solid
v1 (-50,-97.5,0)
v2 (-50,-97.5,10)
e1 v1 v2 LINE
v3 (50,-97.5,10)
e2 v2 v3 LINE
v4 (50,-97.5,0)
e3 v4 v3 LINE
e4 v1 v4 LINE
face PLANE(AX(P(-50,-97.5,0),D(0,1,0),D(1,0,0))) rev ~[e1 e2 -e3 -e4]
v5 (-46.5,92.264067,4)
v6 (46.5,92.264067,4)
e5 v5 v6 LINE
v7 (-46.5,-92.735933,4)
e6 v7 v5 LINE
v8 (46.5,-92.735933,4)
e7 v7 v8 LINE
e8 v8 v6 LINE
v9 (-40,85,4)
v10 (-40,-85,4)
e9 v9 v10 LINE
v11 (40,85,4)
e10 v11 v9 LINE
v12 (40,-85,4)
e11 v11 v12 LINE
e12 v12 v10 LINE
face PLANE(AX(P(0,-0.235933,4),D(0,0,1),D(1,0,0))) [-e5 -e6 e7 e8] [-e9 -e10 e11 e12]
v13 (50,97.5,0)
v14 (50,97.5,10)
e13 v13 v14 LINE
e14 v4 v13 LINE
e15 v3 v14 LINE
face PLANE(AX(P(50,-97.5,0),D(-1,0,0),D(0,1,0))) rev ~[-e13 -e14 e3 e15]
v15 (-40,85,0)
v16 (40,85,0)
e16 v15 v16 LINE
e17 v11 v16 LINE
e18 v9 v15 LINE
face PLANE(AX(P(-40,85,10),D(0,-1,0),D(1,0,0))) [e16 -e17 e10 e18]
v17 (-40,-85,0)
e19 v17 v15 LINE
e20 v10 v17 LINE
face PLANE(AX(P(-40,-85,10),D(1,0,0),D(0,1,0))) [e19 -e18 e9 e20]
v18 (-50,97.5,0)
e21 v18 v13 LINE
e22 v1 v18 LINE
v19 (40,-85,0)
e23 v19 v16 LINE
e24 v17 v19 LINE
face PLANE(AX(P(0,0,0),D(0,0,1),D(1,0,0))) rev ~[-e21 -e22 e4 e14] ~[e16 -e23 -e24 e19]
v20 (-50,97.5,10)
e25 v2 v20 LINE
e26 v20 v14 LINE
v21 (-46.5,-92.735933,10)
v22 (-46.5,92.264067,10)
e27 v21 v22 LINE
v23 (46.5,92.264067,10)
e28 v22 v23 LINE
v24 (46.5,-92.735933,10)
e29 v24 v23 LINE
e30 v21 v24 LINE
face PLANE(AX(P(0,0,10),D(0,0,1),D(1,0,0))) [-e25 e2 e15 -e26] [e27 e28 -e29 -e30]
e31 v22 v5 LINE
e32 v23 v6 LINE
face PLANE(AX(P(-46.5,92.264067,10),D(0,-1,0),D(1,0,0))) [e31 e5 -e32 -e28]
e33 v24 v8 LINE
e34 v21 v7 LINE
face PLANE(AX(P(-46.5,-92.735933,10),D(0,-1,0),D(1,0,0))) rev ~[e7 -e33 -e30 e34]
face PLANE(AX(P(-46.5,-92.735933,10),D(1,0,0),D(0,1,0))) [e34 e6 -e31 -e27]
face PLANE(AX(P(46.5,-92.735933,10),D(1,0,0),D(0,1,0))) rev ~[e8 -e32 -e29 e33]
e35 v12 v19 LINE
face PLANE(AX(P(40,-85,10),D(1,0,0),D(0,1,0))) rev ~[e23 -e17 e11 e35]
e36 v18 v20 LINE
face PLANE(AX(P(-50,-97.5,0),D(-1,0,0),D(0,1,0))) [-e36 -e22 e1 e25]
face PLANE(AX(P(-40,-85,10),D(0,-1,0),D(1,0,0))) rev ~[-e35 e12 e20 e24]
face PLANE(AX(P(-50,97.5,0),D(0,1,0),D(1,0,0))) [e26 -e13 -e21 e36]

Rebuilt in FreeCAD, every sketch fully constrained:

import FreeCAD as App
import Part
import Sketcher
from FreeCAD import Vector

doc = App.newDocument("Part")
body = doc.addObject("PartDesign::Body", "Body")

# Sketch on XY plane
sketch1 = body.newObject("Sketcher::SketchObject", "Sketch")
sketch1.AttachmentSupport = (doc.getObject("XY_Plane"), [""])
sketch1.MapMode = "FlatFace"
sketch1.addGeometry([
    Part.LineSegment(Vector(-50, 98, 0), Vector(-50, -98, 0)),
    Part.LineSegment(Vector(-50, -98, 0), Vector(50, -98, 0)),
    Part.LineSegment(Vector(50, -98, 0), Vector(50, 98, 0)),
    Part.LineSegment(Vector(50, 98, 0), Vector(-50, 98, 0)),
], False)
sketch1.addConstraint([
    Sketcher.Constraint("Coincident", 0, 2, 1, 1),
    Sketcher.Constraint("Coincident", 1, 2, 2, 1),
    Sketcher.Constraint("Coincident", 2, 2, 3, 1),
    Sketcher.Constraint("Coincident", 3, 2, 0, 1),
    Sketcher.Constraint("Vertical", 0),
    Sketcher.Constraint("Horizontal", 1),
    Sketcher.Constraint("Vertical", 2),
    Sketcher.Constraint("Horizontal", 3),
    Sketcher.Constraint("Symmetric", 0, 2, 2, 2, -1, 1),
    Sketcher.Constraint("DistanceX", 1, 1, 1, 2, 100.0),
    Sketcher.Constraint("DistanceY", 0, 2, 0, 1, 195.0),
])
pad1 = body.newObject("PartDesign::Pad", "Pad")
pad1.Profile = sketch1
pad1.Length = 10

# Sketch on XY plane
sketch2 = body.newObject("Sketcher::SketchObject", "Sketch001")
sketch2.AttachmentSupport = (doc.getObject("XY_Plane"), [""])
sketch2.MapMode = "FlatFace"
sketch2.AttachmentOffset = App.Placement(Vector(0, 0, 10), App.Rotation())
sketch2.addGeometry([
    Part.LineSegment(Vector(-40, 85, 0), Vector(-40, -85, 0)),
    Part.LineSegment(Vector(-40, -85, 0), Vector(40, -85, 0)),
    Part.LineSegment(Vector(40, -85, 0), Vector(40, 85, 0)),
    Part.LineSegment(Vector(40, 85, 0), Vector(-40, 85, 0)),
], False)
sketch2.addConstraint([
    Sketcher.Constraint("Coincident", 0, 2, 1, 1),
    Sketcher.Constraint("Coincident", 1, 2, 2, 1),
    Sketcher.Constraint("Coincident", 2, 2, 3, 1),
    Sketcher.Constraint("Coincident", 3, 2, 0, 1),
    Sketcher.Constraint("Vertical", 0),
    Sketcher.Constraint("Horizontal", 1),
    Sketcher.Constraint("Vertical", 2),
    Sketcher.Constraint("Horizontal", 3),
    Sketcher.Constraint("Symmetric", 0, 2, 2, 2, -1, 1),
    Sketcher.Constraint("DistanceX", 1, 1, 1, 2, 80.0),
    Sketcher.Constraint("DistanceY", 0, 2, 0, 1, 170.0),
])
pocket1 = body.newObject("PartDesign::Pocket", "Pocket")
pocket1.Profile = sketch2
pocket1.Type = "ThroughAll"

# Sketch on XY plane
sketch3 = body.newObject("Sketcher::SketchObject", "Sketch002")
sketch3.AttachmentSupport = (doc.getObject("XY_Plane"), [""])
sketch3.MapMode = "FlatFace"
sketch3.AttachmentOffset = App.Placement(Vector(0, 0, 10), App.Rotation())
sketch3.addGeometry([
    Part.LineSegment(Vector(-46, 92, 0), Vector(-46, -93, 0)),
    Part.LineSegment(Vector(-46, -93, 0), Vector(46, -93, 0)),
    Part.LineSegment(Vector(46, -93, 0), Vector(46, 92, 0)),
    Part.LineSegment(Vector(46, 92, 0), Vector(-46, 92, 0)),
], False)
sketch3.addConstraint([
    Sketcher.Constraint("Coincident", 0, 2, 1, 1),
    Sketcher.Constraint("Coincident", 1, 2, 2, 1),
    Sketcher.Constraint("Coincident", 2, 2, 3, 1),
    Sketcher.Constraint("Coincident", 3, 2, 0, 1),
    Sketcher.Constraint("Vertical", 0),
    Sketcher.Constraint("Horizontal", 1),
    Sketcher.Constraint("Vertical", 2),
    Sketcher.Constraint("Horizontal", 3),
    Sketcher.Constraint("DistanceX", 1, 1, 1, 2, 93.0),
    Sketcher.Constraint("DistanceY", 0, 2, 0, 1, 185.0),
    Sketcher.Constraint("DistanceX", 0, 2, -1, 1, 46.5),
    Sketcher.Constraint("DistanceY", 0, 2, -1, 1, 92.735933),
])
pocket2 = body.newObject("PartDesign::Pocket", "Pocket001")
pocket2.Profile = sketch3
pocket2.Length = 6

doc.recompute()
